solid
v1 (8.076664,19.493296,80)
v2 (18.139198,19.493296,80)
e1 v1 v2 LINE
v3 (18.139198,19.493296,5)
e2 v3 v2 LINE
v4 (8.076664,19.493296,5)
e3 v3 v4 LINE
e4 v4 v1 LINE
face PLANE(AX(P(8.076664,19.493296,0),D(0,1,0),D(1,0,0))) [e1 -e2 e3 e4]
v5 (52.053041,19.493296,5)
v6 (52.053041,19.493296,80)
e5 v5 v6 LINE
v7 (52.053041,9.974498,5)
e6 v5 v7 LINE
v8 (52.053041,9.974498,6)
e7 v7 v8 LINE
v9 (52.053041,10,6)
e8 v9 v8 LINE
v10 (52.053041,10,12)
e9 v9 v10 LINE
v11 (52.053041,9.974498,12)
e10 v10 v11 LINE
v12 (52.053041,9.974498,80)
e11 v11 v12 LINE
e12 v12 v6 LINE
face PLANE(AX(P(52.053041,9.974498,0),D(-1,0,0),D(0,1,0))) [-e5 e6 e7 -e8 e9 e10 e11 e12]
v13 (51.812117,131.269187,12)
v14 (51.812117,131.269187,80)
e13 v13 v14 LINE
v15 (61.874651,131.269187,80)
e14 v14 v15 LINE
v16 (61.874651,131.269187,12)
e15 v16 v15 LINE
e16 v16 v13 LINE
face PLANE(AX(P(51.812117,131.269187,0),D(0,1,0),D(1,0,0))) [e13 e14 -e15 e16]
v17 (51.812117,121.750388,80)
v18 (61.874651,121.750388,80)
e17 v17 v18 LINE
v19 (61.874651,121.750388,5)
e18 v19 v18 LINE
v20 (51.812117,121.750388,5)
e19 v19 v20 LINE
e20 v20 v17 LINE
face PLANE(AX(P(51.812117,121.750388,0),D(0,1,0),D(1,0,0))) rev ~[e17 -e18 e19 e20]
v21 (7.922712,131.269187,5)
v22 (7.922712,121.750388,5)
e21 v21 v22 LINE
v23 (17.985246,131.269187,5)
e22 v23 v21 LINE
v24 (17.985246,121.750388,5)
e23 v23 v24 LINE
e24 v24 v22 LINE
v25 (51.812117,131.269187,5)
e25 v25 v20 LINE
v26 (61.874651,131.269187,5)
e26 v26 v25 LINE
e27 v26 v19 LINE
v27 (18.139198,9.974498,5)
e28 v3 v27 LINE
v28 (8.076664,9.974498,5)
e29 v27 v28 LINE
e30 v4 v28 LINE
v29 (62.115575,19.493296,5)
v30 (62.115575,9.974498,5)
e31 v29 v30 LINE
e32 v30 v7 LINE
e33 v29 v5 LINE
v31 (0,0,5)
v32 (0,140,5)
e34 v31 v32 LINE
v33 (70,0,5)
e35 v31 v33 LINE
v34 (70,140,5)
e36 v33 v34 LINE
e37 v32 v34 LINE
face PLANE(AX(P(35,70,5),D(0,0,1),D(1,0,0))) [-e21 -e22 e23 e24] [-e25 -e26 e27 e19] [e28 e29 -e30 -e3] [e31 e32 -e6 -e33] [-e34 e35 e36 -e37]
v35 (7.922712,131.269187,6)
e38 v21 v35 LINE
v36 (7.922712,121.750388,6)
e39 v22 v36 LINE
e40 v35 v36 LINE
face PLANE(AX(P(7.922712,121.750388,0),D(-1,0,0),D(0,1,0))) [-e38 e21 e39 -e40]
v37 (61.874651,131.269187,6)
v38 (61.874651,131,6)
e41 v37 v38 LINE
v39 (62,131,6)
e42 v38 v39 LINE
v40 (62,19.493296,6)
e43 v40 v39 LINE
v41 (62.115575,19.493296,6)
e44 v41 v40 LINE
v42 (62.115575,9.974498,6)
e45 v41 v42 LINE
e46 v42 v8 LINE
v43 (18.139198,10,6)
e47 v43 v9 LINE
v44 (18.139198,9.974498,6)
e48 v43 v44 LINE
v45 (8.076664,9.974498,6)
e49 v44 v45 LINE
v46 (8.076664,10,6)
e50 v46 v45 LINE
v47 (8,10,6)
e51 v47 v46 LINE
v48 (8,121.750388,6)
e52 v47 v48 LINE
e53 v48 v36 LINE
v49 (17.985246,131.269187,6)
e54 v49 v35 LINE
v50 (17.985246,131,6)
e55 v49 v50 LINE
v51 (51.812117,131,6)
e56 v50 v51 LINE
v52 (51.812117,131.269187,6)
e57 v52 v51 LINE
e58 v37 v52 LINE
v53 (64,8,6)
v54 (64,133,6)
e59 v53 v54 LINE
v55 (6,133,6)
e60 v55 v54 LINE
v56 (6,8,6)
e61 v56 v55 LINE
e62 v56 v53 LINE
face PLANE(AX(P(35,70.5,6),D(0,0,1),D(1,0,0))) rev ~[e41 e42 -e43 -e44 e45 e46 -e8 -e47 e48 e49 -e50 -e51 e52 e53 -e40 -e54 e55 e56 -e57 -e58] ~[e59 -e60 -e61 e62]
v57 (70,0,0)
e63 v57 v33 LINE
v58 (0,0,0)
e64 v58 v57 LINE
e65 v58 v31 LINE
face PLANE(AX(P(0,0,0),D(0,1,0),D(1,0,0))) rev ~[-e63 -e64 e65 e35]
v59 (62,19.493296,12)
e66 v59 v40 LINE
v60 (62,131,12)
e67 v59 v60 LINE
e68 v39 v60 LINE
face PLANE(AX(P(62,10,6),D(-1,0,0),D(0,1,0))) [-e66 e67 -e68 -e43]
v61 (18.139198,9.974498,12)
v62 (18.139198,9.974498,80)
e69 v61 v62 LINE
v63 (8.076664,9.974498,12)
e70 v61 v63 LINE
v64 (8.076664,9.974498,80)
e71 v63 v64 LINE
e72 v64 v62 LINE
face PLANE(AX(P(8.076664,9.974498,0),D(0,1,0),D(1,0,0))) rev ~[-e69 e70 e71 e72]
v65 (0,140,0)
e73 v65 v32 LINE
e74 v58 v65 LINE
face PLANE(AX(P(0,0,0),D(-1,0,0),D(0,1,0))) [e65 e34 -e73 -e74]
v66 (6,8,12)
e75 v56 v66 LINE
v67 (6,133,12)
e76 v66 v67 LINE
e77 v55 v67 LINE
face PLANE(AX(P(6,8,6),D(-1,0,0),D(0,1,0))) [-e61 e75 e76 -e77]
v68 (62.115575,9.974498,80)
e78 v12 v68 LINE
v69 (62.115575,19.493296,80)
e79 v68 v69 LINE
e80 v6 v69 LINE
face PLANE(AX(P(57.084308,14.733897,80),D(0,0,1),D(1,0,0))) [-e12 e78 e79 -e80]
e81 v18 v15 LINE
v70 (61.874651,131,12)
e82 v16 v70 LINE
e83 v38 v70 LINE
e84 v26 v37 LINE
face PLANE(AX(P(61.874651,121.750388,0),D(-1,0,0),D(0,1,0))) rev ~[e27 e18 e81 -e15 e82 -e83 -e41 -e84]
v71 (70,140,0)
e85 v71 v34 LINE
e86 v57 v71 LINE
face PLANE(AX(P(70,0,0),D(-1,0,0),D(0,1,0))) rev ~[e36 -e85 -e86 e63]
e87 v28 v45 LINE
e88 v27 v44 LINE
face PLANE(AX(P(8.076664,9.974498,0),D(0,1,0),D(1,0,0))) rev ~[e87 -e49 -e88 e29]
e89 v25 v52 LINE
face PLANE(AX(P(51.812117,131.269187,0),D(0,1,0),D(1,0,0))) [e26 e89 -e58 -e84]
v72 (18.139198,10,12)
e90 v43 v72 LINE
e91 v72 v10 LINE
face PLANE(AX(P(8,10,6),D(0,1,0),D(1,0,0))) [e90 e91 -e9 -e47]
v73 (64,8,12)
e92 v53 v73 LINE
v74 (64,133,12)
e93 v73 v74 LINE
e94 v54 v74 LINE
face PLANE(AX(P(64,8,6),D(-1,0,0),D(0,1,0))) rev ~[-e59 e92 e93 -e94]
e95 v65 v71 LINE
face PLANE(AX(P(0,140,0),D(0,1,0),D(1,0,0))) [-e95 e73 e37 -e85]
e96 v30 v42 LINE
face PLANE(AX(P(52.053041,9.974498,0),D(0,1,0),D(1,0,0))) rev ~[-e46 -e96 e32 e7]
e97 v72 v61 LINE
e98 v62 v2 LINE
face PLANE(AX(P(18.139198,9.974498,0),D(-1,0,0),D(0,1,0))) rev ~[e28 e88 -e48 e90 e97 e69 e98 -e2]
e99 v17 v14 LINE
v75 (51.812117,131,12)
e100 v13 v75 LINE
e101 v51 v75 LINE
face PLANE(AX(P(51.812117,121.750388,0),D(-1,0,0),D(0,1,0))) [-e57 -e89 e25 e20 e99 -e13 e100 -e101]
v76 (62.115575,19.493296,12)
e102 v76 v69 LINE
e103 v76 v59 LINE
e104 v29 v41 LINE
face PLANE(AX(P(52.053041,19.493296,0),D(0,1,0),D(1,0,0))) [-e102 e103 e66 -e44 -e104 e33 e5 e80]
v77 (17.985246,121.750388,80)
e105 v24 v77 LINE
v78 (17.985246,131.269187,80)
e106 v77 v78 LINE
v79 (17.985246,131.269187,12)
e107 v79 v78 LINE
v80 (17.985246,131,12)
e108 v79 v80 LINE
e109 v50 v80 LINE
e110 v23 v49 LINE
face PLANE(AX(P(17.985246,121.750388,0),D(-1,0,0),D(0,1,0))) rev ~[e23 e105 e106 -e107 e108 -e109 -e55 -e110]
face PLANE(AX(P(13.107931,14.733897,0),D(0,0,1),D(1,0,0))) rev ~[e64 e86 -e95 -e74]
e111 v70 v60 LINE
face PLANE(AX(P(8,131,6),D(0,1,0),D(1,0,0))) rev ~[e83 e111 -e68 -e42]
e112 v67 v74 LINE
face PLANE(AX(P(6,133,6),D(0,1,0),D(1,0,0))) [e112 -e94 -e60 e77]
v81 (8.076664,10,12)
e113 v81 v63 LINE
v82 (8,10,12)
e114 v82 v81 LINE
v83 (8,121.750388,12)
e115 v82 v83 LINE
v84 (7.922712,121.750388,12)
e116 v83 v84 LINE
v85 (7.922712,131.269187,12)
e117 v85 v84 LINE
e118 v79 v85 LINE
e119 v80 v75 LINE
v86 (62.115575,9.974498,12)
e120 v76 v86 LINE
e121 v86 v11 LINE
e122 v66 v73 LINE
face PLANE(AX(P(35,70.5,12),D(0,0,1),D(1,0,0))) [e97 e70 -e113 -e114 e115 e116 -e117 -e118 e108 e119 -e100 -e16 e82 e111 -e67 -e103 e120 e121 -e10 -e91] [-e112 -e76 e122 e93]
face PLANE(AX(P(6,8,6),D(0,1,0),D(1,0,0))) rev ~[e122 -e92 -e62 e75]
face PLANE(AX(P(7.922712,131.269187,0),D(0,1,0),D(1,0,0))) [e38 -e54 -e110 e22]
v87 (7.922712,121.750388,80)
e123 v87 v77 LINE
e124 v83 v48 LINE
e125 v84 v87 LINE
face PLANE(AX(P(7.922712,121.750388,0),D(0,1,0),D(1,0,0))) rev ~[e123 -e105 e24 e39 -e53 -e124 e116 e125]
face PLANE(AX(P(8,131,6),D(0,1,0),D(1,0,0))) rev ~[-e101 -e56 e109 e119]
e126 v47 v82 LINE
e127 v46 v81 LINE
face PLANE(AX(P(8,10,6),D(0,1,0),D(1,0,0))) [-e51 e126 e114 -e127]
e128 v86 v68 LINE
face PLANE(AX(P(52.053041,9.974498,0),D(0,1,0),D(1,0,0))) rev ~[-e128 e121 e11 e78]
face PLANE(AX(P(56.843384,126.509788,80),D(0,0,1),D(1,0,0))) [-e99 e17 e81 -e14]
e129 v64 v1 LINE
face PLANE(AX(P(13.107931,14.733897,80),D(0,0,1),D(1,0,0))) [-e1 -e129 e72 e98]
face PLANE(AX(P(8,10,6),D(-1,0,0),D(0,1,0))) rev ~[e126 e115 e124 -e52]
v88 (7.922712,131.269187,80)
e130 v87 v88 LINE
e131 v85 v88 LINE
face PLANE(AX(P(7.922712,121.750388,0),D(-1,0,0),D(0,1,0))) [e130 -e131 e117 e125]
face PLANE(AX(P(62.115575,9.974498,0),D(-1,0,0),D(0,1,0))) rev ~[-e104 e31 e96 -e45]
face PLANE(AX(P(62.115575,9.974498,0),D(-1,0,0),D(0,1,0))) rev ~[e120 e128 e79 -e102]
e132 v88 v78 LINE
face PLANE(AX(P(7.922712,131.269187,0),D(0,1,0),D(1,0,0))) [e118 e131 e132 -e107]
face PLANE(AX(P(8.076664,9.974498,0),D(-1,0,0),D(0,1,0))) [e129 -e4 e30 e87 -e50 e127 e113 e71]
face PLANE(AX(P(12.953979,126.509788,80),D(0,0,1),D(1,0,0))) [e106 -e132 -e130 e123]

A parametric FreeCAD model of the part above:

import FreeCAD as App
import Part
import Sketcher
from FreeCAD import Vector
Q = App.Units.Quantity

doc = App.newDocument("Part")
params = doc.addObject("Spreadsheet::Sheet", "Params")
for row, (alias, value) in enumerate([
    ("pad1_length", "80 mm"),
    ("sketch2_width", "58 mm"),
    ("sketch2_width2", "54 mm"),
    ("sketch2_height", "125 mm"),
    ("sketch2_height2", "121 mm"),
    ("pad2_length", "6 mm"),
    ("sketch3_width", "70 mm"),
    ("sketch3_height", "140 mm"),
    ("pad3_length", "5 mm"),
], start=1):
    params.set(f"A{row}", alias)
    params.set(f"B{row}", "=" + value)
    params.setAlias(f"B{row}", alias)

body = doc.addObject("PartDesign::Body", "Body")
body.AllowCompound = True

sketch1 = doc.addObject("Sketcher::SketchObject", "Sketch")
body.addObject(sketch1)
sketch1.AttachmentSupport = (doc.XY_Plane, [""])
sketch1.MapMode = "FlatFace"
sketch1.addGeometry(Part.LineSegment(Vector(8, 131, 0), Vector(8, 122, 0)), False)
sketch1.addGeometry(Part.LineSegment(Vector(8, 122, 0), Vector(18, 122, 0)), False)
sketch1.addGeometry(Part.LineSegment(Vector(18, 122, 0), Vector(18, 131, 0)), False)
sketch1.addGeometry(Part.LineSegment(Vector(18, 131, 0), Vector(8, 131, 0)), False)
sketch1.addGeometry(Part.LineSegment(Vector(52, 131, 0), Vector(52, 122, 0)), False)
sketch1.addGeometry(Part.LineSegment(Vector(52, 122, 0), Vector(62, 122, 0)), False)
sketch1.addGeometry(Part.LineSegment(Vector(62, 122, 0), Vector(62, 131, 0)), False)
sketch1.addGeometry(Part.LineSegment(Vector(62, 131, 0), Vector(52, 131, 0)), False)
sketch1.addGeometry(Part.LineSegment(Vector(52, 19, 0), Vector(52, 10, 0)), False)
sketch1.addGeometry(Part.LineSegment(Vector(52, 10, 0), Vector(62, 10, 0)), False)
sketch1.addGeometry(Part.LineSegment(Vector(62, 10, 0), Vector(62, 19, 0)), False)
sketch1.addGeometry(Part.LineSegment(Vector(62, 19, 0), Vector(52, 19, 0)), False)
sketch1.addGeometry(Part.LineSegment(Vector(8, 19, 0), Vector(8, 10, 0)), False)
sketch1.addGeometry(Part.LineSegment(Vector(8, 10, 0), Vector(18, 10, 0)), False)
sketch1.addGeometry(Part.LineSegment(Vector(18, 10, 0), Vector(18, 19, 0)), False)
sketch1.addGeometry(Part.LineSegment(Vector(18, 19, 0), Vector(8, 19, 0)), False)
sketch1.addConstraint(Sketcher.Constraint("Coincident", 0, 2, 1, 1))
sketch1.addConstraint(Sketcher.Constraint("Coincident", 1, 2, 2, 1))
sketch1.addConstraint(Sketcher.Constraint("Coincident", 2, 2, 3, 1))
sketch1.addConstraint(Sketcher.Constraint("Coincident", 3, 2, 0, 1))
sketch1.addConstraint(Sketcher.Constraint("Coincident", 4, 2, 5, 1))
sketch1.addConstraint(Sketcher.Constraint("Coincident", 5, 2, 6, 1))
sketch1.addConstraint(Sketcher.Constraint("Coincident", 6, 2, 7, 1))
sketch1.addConstraint(Sketcher.Constraint("Coincident", 7, 2, 4, 1))
sketch1.addConstraint(Sketcher.Constraint("Coincident", 8, 2, 9, 1))
sketch1.addConstraint(Sketcher.Constraint("Coincident", 9, 2, 10, 1))
sketch1.addConstraint(Sketcher.Constraint("Coincident", 10, 2, 11, 1))
sketch1.addConstraint(Sketcher.Constraint("Coincident", 11, 2, 8, 1))
sketch1.addConstraint(Sketcher.Constraint("Coincident", 12, 2, 13, 1))
sketch1.addConstraint(Sketcher.Constraint("Coincident", 13, 2, 14, 1))
sketch1.addConstraint(Sketcher.Constraint("Coincident", 14, 2, 15, 1))
sketch1.addConstraint(Sketcher.Constraint("Coincident", 15, 2, 12, 1))
sketch1.addConstraint(Sketcher.Constraint("Vertical", 0))
sketch1.addConstraint(Sketcher.Constraint("Horizontal", 1))
sketch1.addConstraint(Sketcher.Constraint("Vertical", 2))
sketch1.addConstraint(Sketcher.Constraint("Horizontal", 3))
sketch1.addConstraint(Sketcher.Constraint("Vertical", 4))
sketch1.addConstraint(Sketcher.Constraint("Horizontal", 5))
sketch1.addConstraint(Sketcher.Constraint("Vertical", 6))
sketch1.addConstraint(Sketcher.Constraint("Horizontal", 7))
sketch1.addConstraint(Sketcher.Constraint("Vertical", 8))
sketch1.addConstraint(Sketcher.Constraint("Horizontal", 9))
sketch1.addConstraint(Sketcher.Constraint("Vertical", 10))
sketch1.addConstraint(Sketcher.Constraint("Horizontal", 11))
sketch1.addConstraint(Sketcher.Constraint("Vertical", 12))
sketch1.addConstraint(Sketcher.Constraint("Horizontal", 13))
sketch1.addConstraint(Sketcher.Constraint("Vertical", 14))
sketch1.addConstraint(Sketcher.Constraint("Horizontal", 15))
sketch1.addConstraint(Sketcher.Constraint("Horizontal", 1, 2, 4, 2))
sketch1.addConstraint(Sketcher.Constraint("Horizontal", 3, 2, 6, 2))
sketch1.addConstraint(Sketcher.Constraint("Horizontal", 9, 2, 12, 2))
sketch1.addConstraint(Sketcher.Constraint("Horizontal", 11, 2, 14, 2))
sketch1.addConstraint(Sketcher.Constraint("Equal", 3, 5))
sketch1.addConstraint(Sketcher.Constraint("Equal", 7, 9))
sketch1.addConstraint(Sketcher.Constraint("Equal", 11, 13))
sketch1.addConstraint(Sketcher.Constraint("Equal", 6, 8))
sketch1.addConstraint(Sketcher.Constraint("DistanceY", 0, 2, 0, 1, Q("9.518799 mm")))
sketch1.addConstraint(Sketcher.Constraint("DistanceX", -1, 1, 13, 2, Q("18.139198 mm")))
sketch1.addConstraint(Sketcher.Constraint("DistanceX", 1, 1, 1, 2, Q("10.062535 mm")))
sketch1.addConstraint(Sketcher.Constraint("DistanceX", -1, 1, 0, 2, Q("7.922712 mm")))
sketch1.addConstraint(Sketcher.Constraint("DistanceY", -1, 1, 0, 2, Q("121.750388 mm")))
sketch1.addConstraint(Sketcher.Constraint("DistanceX", -1, 1, 5, 2, Q("61.874651 mm")))
sketch1.addConstraint(Sketcher.Constraint("DistanceX", -1, 1, 8, 2, Q("52.053041 mm")))
sketch1.addConstraint(Sketcher.Constraint("DistanceY", 8, 2, 4, 2, Q("111.775891 mm")))
pad1 = doc.addObject("PartDesign::Pad", "Pad")
body.addObject(pad1)
pad1.Profile = sketch1
pad1.setExpression("Length", "Params.pad1_length")
body2 = doc.addObject("PartDesign::Body", "Body001")

sketch2 = doc.addObject("Sketcher::SketchObject", "Sketch001")
body2.addObject(sketch2)
sketch2.AttachmentSupport = (doc.getObject("XY_Plane001"), [""])
sketch2.MapMode = "FlatFace"
sketch2.addGeometry(Part.LineSegment(Vector(6, 133, 0), Vector(6, 8, 0)), False)
sketch2.addGeometry(Part.LineSegment(Vector(6, 8, 0), Vector(64, 8, 0)), False)
sketch2.addGeometry(Part.LineSegment(Vector(64, 8, 0), Vector(64, 133, 0)), False)
sketch2.addGeometry(Part.LineSegment(Vector(64, 133, 0), Vector(6, 133, 0)), False)
sketch2.addGeometry(Part.LineSegment(Vector(62, 10, 0), Vector(8, 10, 0)), False)
sketch2.addGeometry(Part.LineSegment(Vector(8, 10, 0), Vector(8, 131, 0)), False)
sketch2.addGeometry(Part.LineSegment(Vector(8, 131, 0), Vector(62, 131, 0)), False)
sketch2.addGeometry(Part.LineSegment(Vector(62, 131, 0), Vector(62, 10, 0)), False)
sketch2.addConstraint(Sketcher.Constraint("Coincident", 0, 2, 1, 1))
sketch2.addConstraint(Sketcher.Constraint("Coincident", 1, 2, 2, 1))
sketch2.addConstraint(Sketcher.Constraint("Coincident", 2, 2, 3, 1))
sketch2.addConstraint(Sketcher.Constraint("Coincident", 3, 2, 0, 1))
sketch2.addConstraint(Sketcher.Constraint("Coincident", 4, 2, 5, 1))
sketch2.addConstraint(Sketcher.Constraint("Coincident", 5, 2, 6, 1))
sketch2.addConstraint(Sketcher.Constraint("Coincident", 6, 2, 7, 1))
sketch2.addConstraint(Sketcher.Constraint("Coincident", 7, 2, 4, 1))
sketch2.addConstraint(Sketcher.Constraint("Vertical", 0))
sketch2.addConstraint(Sketcher.Constraint("Horizontal", 1))
sketch2.addConstraint(Sketcher.Constraint("Vertical", 2))
sketch2.addConstraint(Sketcher.Constraint("Horizontal", 3))
sketch2.addConstraint(Sketcher.Constraint("Horizontal", 4))
sketch2.addConstraint(Sketcher.Constraint("Vertical", 5))
sketch2.addConstraint(Sketcher.Constraint("Horizontal", 6))
sketch2.addConstraint(Sketcher.Constraint("Vertical", 7))
sketch2.addConstraint(Sketcher.Constraint("DistanceX", 1, 1, 1, 2, Q("58 mm")))
sketch2.addConstraint(Sketcher.Constraint("DistanceX", 4, 2, 4, 1, Q("54 mm")))
sketch2.addConstraint(Sketcher.Constraint("DistanceY", 0, 2, 0, 1, Q("125 mm")))
sketch2.addConstraint(Sketcher.Constraint("DistanceY", 5, 1, 5, 2, Q("121 mm")))
sketch2.addConstraint(Sketcher.Constraint("DistanceX", -1, 1, 0, 2, Q("6 mm")))
sketch2.addConstraint(Sketcher.Constraint("DistanceY", -1, 1, 0, 2, Q("8 mm")))
sketch2.addConstraint(Sketcher.Constraint("DistanceX", -1, 1, 4, 2, Q("8 mm")))
sketch2.addConstraint(Sketcher.Constraint("DistanceY", -1, 1, 4, 2, Q("10 mm")))
sketch2.setExpression("Constraints[16]", "Params.sketch2_width")
sketch2.setExpression("Constraints[17]", "Params.sketch2_width2")
sketch2.setExpression("Constraints[18]", "Params.sketch2_height")
sketch2.setExpression("Constraints[19]", "Params.sketch2_height2")
pad2 = doc.addObject("PartDesign::Pad", "Pad001")
body2.addObject(pad2)
pad2.Profile = sketch2
pad2.setExpression("Length", "Params.pad2_length")
body3 = doc.addObject("PartDesign::Body", "Body002")
doc.recompute()

body2.Placement = App.Placement(Vector(0, 0, 6), App.Rotation(Vector(0, 0, 1), 0))
boolean = doc.addObject("PartDesign::Boolean", "Boolean")
body3.addObject(boolean)
boolean.Type = "Fuse"
boolean.addObjects([body2])
body4 = doc.addObject("PartDesign::Body", "Body003")
body4.AllowCompound = True

sketch3 = doc.addObject("Sketcher::SketchObject", "Sketch002")
body4.addObject(sketch3)
sketch3.AttachmentSupport = (doc.getObject("XY_Plane003"), [""])
sketch3.MapMode = "FlatFace"
sketch3.addGeometry(Part.LineSegment(Vector(0, 140, 0), Vector(0, 0, 0)), False)
sketch3.addGeometry(Part.LineSegment(Vector(0, 0, 0), Vector(70, 0, 0)), False)
sketch3.addGeometry(Part.LineSegment(Vector(70, 0, 0), Vector(70, 140, 0)), False)
sketch3.addGeometry(Part.LineSegment(Vector(70, 140, 0), Vector(0, 140, 0)), False)
sketch3.addConstraint(Sketcher.Constraint("Coincident", 0, 2, 1, 1))
sketch3.addConstraint(Sketcher.Constraint("Coincident", 1, 2, 2, 1))
sketch3.addConstraint(Sketcher.Constraint("Coincident", 2, 2, 3, 1))
sketch3.addConstraint(Sketcher.Constraint("Coincident", 3, 2, 0, 1))
sketch3.addConstraint(Sketcher.Constraint("Vertical", 0))
sketch3.addConstraint(Sketcher.Constraint("Horizontal", 1))
sketch3.addConstraint(Sketcher.Constraint("Vertical", 2))
sketch3.addConstraint(Sketcher.Constraint("Horizontal", 3))
sketch3.addConstraint(Sketcher.Constraint("Coincident", 0, 2, -1, 1))
sketch3.addConstraint(Sketcher.Constraint("DistanceX", 1, 1, 1, 2, Q("70 mm")))
sketch3.addConstraint(Sketcher.Constraint("DistanceY", 0, 2, 0, 1, Q("140 mm")))
sketch3.setExpression("Constraints[9]", "Params.sketch3_width")
sketch3.setExpression("Constraints[10]", "Params.sketch3_height")
pad3 = doc.addObject("PartDesign::Pad", "Pad002")
body4.addObject(pad3)
pad3.Profile = sketch3
pad3.setExpression("Length", "Params.pad3_length")
doc.recompute()

boolean2 = doc.addObject("PartDesign::Boolean", "Boolean001")
body4.addObject(boolean2)
boolean2.Type = "Fuse"
boolean2.addObjects([body3])
doc.recompute()

boolean3 = doc.addObject("PartDesign::Boolean", "Boolean002")
body4.addObject(boolean3)
boolean3.Type = "Fuse"
boolean3.addObjects([body])

doc.recompute()
